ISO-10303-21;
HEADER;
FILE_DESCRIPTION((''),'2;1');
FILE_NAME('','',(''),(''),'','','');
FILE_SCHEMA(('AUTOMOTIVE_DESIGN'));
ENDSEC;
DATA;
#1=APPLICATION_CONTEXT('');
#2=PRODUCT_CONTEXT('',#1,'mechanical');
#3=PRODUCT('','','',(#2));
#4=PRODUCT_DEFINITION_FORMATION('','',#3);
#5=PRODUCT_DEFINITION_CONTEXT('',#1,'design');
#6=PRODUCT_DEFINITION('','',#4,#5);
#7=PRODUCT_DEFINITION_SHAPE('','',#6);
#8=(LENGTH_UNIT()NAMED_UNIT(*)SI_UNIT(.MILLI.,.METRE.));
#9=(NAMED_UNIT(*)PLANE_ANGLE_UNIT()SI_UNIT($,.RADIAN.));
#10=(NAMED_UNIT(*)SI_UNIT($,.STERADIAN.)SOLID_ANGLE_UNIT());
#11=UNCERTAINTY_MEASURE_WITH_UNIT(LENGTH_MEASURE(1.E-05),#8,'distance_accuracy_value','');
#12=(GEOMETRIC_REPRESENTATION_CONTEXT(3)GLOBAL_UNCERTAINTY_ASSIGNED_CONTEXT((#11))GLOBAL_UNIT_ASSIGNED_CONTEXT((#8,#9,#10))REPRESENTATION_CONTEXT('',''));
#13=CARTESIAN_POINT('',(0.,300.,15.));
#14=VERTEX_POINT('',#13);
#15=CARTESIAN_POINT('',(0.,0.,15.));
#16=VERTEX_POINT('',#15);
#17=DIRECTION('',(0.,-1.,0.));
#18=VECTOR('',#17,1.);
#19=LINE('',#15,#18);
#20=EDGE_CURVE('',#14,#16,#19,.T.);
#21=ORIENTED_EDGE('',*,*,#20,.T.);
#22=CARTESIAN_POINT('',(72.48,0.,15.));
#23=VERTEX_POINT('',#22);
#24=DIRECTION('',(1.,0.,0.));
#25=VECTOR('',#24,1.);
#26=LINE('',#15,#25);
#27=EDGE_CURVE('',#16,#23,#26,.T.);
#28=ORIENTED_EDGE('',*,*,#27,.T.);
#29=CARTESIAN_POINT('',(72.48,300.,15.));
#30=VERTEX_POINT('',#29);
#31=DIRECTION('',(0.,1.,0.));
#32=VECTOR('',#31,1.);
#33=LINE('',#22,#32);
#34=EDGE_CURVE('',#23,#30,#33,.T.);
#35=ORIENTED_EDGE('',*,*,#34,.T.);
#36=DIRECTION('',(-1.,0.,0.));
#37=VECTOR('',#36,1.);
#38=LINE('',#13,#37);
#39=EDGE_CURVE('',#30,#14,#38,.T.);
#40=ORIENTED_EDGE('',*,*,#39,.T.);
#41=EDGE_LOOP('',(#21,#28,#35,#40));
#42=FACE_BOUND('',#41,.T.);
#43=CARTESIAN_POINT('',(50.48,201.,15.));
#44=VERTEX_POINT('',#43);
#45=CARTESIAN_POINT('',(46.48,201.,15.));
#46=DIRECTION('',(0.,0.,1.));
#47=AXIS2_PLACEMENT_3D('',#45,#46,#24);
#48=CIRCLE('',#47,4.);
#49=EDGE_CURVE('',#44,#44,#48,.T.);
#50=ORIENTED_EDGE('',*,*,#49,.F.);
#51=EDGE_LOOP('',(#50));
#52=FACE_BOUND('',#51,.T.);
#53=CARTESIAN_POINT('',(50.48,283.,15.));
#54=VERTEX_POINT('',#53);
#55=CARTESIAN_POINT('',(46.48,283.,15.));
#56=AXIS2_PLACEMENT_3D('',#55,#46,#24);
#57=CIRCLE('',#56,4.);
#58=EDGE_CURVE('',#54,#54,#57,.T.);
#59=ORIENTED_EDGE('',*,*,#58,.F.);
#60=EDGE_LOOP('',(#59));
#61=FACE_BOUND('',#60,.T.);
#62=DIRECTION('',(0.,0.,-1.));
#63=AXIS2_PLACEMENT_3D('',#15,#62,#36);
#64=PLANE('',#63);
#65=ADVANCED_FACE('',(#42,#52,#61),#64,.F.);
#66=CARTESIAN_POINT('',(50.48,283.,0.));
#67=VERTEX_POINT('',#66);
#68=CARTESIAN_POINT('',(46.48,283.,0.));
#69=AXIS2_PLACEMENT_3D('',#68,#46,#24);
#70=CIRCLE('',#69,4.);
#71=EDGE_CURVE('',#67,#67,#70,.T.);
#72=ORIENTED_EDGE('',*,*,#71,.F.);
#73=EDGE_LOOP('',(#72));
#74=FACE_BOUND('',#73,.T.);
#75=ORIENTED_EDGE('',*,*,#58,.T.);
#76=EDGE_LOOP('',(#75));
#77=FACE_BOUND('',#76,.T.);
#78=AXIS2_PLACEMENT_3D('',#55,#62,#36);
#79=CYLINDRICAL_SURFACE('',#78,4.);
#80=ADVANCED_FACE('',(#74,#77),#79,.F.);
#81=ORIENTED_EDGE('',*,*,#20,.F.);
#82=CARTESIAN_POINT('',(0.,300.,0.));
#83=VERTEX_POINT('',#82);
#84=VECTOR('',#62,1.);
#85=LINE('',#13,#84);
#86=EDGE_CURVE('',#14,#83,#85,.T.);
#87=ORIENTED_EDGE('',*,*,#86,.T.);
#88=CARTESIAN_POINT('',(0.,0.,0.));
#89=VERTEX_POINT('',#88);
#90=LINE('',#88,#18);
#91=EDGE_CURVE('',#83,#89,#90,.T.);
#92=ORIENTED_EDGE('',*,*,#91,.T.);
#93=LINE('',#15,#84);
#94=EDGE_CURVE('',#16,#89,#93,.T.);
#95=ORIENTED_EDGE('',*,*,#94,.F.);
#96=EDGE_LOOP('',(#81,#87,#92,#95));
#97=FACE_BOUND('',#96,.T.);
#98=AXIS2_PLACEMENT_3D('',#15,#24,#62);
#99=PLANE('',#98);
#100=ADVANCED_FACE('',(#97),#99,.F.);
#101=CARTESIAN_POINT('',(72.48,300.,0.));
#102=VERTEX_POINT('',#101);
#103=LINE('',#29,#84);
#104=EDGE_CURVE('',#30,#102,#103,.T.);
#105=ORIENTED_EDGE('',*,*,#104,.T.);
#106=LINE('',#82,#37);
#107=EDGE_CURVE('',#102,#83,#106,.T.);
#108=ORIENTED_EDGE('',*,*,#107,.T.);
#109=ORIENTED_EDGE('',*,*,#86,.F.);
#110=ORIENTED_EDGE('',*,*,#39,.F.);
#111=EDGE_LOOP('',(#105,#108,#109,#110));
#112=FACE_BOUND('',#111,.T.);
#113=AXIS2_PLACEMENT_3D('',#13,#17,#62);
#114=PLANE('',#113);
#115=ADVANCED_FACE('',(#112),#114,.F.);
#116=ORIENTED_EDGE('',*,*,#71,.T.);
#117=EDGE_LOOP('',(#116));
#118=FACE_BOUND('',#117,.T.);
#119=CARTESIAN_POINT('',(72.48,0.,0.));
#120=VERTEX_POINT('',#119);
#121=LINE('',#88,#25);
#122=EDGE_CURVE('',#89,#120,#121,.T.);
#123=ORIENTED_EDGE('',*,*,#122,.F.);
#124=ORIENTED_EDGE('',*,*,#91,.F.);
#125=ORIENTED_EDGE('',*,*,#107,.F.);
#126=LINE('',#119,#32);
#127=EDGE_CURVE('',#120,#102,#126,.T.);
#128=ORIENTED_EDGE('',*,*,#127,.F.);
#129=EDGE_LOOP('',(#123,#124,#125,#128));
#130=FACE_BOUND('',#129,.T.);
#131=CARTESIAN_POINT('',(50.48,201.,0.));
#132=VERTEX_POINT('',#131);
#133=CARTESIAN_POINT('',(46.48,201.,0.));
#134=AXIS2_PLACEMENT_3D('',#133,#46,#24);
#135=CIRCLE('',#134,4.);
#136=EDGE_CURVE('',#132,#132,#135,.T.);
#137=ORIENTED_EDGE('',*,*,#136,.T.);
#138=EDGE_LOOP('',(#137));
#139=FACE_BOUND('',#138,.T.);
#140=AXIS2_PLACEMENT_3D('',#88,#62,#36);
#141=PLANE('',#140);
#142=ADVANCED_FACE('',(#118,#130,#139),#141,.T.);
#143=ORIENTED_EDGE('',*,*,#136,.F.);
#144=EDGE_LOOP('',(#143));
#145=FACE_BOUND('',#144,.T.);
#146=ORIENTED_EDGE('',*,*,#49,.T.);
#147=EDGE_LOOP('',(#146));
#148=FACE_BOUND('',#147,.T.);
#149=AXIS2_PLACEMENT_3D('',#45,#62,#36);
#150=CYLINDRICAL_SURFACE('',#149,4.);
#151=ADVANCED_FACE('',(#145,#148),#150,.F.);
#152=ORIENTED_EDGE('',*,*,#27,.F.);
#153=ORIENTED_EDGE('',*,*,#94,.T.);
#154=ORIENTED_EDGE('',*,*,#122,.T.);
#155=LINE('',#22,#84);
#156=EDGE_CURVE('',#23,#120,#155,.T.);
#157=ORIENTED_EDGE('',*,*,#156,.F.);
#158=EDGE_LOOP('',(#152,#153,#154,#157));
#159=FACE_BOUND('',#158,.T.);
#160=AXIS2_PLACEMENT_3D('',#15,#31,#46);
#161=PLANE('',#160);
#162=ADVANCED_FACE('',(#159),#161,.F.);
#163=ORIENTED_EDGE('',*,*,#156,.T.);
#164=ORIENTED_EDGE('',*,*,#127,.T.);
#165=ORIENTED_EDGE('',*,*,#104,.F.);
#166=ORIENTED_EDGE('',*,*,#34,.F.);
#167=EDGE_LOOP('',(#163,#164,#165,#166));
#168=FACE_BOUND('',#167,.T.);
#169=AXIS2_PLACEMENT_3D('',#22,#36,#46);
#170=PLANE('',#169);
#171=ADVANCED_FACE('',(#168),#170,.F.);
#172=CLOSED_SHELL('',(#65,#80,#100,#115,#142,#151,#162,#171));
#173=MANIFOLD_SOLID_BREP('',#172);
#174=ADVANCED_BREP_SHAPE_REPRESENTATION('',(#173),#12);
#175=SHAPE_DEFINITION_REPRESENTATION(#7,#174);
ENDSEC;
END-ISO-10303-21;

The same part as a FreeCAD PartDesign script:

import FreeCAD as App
import Part
import Sketcher

V = App.Vector

doc = App.newDocument("Part")
body = doc.addObject("PartDesign::Body", "Body")

# Sketch on XY plane
sketch1 = body.newObject("Sketcher::SketchObject", "Sketch")
sketch1.AttachmentSupport = (doc.getObject("XY_Plane"), [""])
sketch1.MapMode = "FlatFace"
sketch1.addGeometry(Part.LineSegment(V(0, 300, 0), V(0, 0, 0)), False)
sketch1.addGeometry(Part.LineSegment(V(0, 0, 0), V(72.48, 0, 0)), False)
sketch1.addGeometry(Part.LineSegment(V(72.48, 0, 0), V(72.48, 300, 0)), False)
sketch1.addGeometry(Part.LineSegment(V(72.48, 300, 0), V(0, 300, 0)), False)
sketch1.addGeometry(Part.Circle(V(46.48, 201, 0), V(0, 0, 1), 4), False)
sketch1.addGeometry(Part.Circle(V(46.48, 283, 0), V(0, 0, 1), 4), False)
sketch1.addConstraint(Sketcher.Constraint("Coincident", 0, 2, 1, 1))
sketch1.addConstraint(Sketcher.Constraint("Coincident", 1, 2, 2, 1))
sketch1.addConstraint(Sketcher.Constraint("Coincident", 2, 2, 3, 1))
sketch1.addConstraint(Sketcher.Constraint("Coincident", 3, 2, 0, 1))
sketch1.addConstraint(Sketcher.Constraint("Vertical", 0))
sketch1.addConstraint(Sketcher.Constraint("Horizontal", 1))
sketch1.addConstraint(Sketcher.Constraint("Vertical", 2))
sketch1.addConstraint(Sketcher.Constraint("Horizontal", 3))
sketch1.addConstraint(Sketcher.Constraint("Coincident", 0, 2, -1, 1))
sketch1.addConstraint(Sketcher.Constraint("Equal", 4, 5))
sketch1.addConstraint(Sketcher.Constraint("Vertical", 4, 3, 5, 3))
sketch1.addConstraint(Sketcher.Constraint("Diameter", 4, 8.0))
sketch1.addConstraint(Sketcher.Constraint("DistanceY", 0, 2, 0, 1, 300.0))
sketch1.addConstraint(Sketcher.Constraint("DistanceY", -1, 1, 4, 3, 201.0))
sketch1.addConstraint(Sketcher.Constraint("DistanceY", -1, 1, 5, 3, 283.0))
sketch1.addConstraint(Sketcher.Constraint("DistanceX", 4, 3, 1, 2, 26.0))
sketch1.addConstraint(Sketcher.Constraint("DistanceX", 1, 1, 1, 2, 72.48))
pad1 = body.newObject("PartDesign::Pad", "Pad")
pad1.Profile = sketch1
pad1.Length = 15

doc.recompute()
